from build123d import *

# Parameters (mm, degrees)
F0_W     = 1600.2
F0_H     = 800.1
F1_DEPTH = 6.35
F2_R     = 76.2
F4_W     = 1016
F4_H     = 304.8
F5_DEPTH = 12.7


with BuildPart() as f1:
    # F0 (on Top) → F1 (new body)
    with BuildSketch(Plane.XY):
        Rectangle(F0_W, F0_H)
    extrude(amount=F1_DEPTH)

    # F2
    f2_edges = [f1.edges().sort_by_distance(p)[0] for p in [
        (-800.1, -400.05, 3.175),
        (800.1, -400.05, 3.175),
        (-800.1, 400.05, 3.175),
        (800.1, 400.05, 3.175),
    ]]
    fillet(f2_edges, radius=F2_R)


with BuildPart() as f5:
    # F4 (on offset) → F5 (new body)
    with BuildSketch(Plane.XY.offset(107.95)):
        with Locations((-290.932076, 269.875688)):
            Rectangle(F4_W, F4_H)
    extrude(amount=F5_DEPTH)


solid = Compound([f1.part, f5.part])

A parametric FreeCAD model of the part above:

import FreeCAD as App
import Part
import Sketcher
from FreeCAD import Vector
Q = App.Units.Quantity


def edges_at(feature, points):
    """Names of the edges that pass closest to the given points."""
    edges = feature.Shape.Edges
    near = lambda p: min(range(len(edges)), key=lambda i: edges[i].distToShape(Part.Vertex(*p))[0])
    return sorted({f"Edge{near(p) + 1}" for p in points})

doc = App.newDocument("Part")
body = doc.addObject("PartDesign::Body", "Body")

sketch1 = body.newObject("Sketcher::SketchObject", "Sketch")
sketch1.AttachmentSupport = (doc.getObject("XY_Plane"), [""])
sketch1.MapMode = "FlatFace"
sketch1.addGeometry([
    Part.LineSegment(Vector(-800, 400, 0), Vector(-800, -400, 0)),
    Part.LineSegment(Vector(-800, -400, 0), Vector(800, -400, 0)),
    Part.LineSegment(Vector(800, -400, 0), Vector(800, 400, 0)),
    Part.LineSegment(Vector(800, 400, 0), Vector(-800, 400, 0)),
], False)
sketch1.addConstraint([
    Sketcher.Constraint("Coincident", 0, 2, 1, 1),
    Sketcher.Constraint("Coincident", 1, 2, 2, 1),
    Sketcher.Constraint("Coincident", 2, 2, 3, 1),
    Sketcher.Constraint("Coincident", 3, 2, 0, 1),
    Sketcher.Constraint("Vertical", 0),
    Sketcher.Constraint("Horizontal", 1),
    Sketcher.Constraint("Vertical", 2),
    Sketcher.Constraint("Horizontal", 3),
    Sketcher.Constraint("Symmetric", 0, 2, 2, 2, -1, 1),
    Sketcher.Constraint("DistanceX", 1, 1, 1, 2, Q("63 in")),
    Sketcher.Constraint("DistanceY", 0, 2, 0, 1, Q("31.5 in")),
])
pad1 = body.newObject("PartDesign::Pad", "Pad")
pad1.Profile = sketch1
pad1.Length = Q("0.25 in")
doc.recompute()

fillet = body.newObject("PartDesign::Fillet", "Fillet")
fillet.Base = (pad1, edges_at(pad1, [
    (-800.1, -400.05, 3.175),
    (800.1, -400.05, 3.175),
    (-800.1, 400.05, 3.175),
    (800.1, 400.05, 3.175),
]))
fillet.Radius = Q("3 in")
body2 = doc.addObject("PartDesign::Body", "Body001")

sketch2 = body2.newObject("Sketcher::SketchObject", "Sketch001")
sketch2.AttachmentSupport = (doc.getObject("XY_Plane001"), [""])
sketch2.MapMode = "FlatFace"
sketch2.AttachmentOffset = App.Placement(Vector(0, 0, 4.25 * 25.4), App.Rotation())
sketch2.addGeometry([
    Part.LineSegment(Vector(-799, 422, 0), Vector(-799, 117, 0)),
    Part.LineSegment(Vector(-799, 117, 0), Vector(217, 117, 0)),
    Part.LineSegment(Vector(217, 117, 0), Vector(217, 422, 0)),
    Part.LineSegment(Vector(217, 422, 0), Vector(-799, 422, 0)),
], False)
sketch2.addConstraint([
    Sketcher.Constraint("Coincident", 0, 2, 1, 1),
    Sketcher.Constraint("Coincident", 1, 2, 2, 1),
    Sketcher.Constraint("Coincident", 2, 2, 3, 1),
    Sketcher.Constraint("Coincident", 3, 2, 0, 1),
    Sketcher.Constraint("Vertical", 0),
    Sketcher.Constraint("Horizontal", 1),
    Sketcher.Constraint("Vertical", 2),
    Sketcher.Constraint("Horizontal", 3),
    Sketcher.Constraint("DistanceX", 1, 1, 1, 2, Q("40 in")),
    Sketcher.Constraint("DistanceY", 0, 2, 0, 1, Q("12 in")),
    Sketcher.Constraint("DistanceY", -1, 1, 0, 2, 117.475688),
    Sketcher.Constraint("DistanceX", 0, 2, -1, 1, 798.932076),
])
pad2 = body2.newObject("PartDesign::Pad", "Pad001")
pad2.Profile = sketch2
pad2.Length = Q("0.5 in")

doc.recompute()
